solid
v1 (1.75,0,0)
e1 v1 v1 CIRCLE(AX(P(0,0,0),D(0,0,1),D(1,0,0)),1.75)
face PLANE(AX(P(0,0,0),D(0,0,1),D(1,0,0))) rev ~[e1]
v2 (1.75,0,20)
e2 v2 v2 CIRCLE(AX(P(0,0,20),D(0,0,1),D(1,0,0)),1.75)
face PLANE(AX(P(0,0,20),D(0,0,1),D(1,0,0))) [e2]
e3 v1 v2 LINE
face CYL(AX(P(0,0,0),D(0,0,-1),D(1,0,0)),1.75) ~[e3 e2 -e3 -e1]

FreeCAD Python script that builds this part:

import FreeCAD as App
import Part
import Sketcher

V = App.Vector

doc = App.newDocument("Part")
params = doc.addObject("Spreadsheet::Sheet", "Params")
for row, (alias, value) in enumerate([
    ("sketch1_diameter", "3.5 mm"),
    ("pad1_length", "20 mm"),
], start=1):
    params.set(f"A{row}", alias)
    params.set(f"B{row}", "=" + value)
    params.setAlias(f"B{row}", alias)

body = doc.addObject("PartDesign::Body", "Body")

sketch1 = doc.addObject("Sketcher::SketchObject", "Sketch")
body.addObject(sketch1)
sketch1.AttachmentSupport = (doc.XY_Plane, [""])
sketch1.MapMode = "FlatFace"
sketch1.addGeometry(Part.Circle(V(0, 0, 0), V(0, 0, 1), 1.8), False)
sketch1.addConstraint(Sketcher.Constraint("Coincident", 0, 3, -1, 1))
sketch1.addConstraint(Sketcher.Constraint("Diameter", 0, 3.5))
sketch1.setExpression("Constraints[1]", "Params.sketch1_diameter")
pad1 = doc.addObject("PartDesign::Pad", "Pad")
body.addObject(pad1)
pad1.Profile = sketch1
pad1.setExpression("Length", "Params.pad1_length")

doc.recompute()
